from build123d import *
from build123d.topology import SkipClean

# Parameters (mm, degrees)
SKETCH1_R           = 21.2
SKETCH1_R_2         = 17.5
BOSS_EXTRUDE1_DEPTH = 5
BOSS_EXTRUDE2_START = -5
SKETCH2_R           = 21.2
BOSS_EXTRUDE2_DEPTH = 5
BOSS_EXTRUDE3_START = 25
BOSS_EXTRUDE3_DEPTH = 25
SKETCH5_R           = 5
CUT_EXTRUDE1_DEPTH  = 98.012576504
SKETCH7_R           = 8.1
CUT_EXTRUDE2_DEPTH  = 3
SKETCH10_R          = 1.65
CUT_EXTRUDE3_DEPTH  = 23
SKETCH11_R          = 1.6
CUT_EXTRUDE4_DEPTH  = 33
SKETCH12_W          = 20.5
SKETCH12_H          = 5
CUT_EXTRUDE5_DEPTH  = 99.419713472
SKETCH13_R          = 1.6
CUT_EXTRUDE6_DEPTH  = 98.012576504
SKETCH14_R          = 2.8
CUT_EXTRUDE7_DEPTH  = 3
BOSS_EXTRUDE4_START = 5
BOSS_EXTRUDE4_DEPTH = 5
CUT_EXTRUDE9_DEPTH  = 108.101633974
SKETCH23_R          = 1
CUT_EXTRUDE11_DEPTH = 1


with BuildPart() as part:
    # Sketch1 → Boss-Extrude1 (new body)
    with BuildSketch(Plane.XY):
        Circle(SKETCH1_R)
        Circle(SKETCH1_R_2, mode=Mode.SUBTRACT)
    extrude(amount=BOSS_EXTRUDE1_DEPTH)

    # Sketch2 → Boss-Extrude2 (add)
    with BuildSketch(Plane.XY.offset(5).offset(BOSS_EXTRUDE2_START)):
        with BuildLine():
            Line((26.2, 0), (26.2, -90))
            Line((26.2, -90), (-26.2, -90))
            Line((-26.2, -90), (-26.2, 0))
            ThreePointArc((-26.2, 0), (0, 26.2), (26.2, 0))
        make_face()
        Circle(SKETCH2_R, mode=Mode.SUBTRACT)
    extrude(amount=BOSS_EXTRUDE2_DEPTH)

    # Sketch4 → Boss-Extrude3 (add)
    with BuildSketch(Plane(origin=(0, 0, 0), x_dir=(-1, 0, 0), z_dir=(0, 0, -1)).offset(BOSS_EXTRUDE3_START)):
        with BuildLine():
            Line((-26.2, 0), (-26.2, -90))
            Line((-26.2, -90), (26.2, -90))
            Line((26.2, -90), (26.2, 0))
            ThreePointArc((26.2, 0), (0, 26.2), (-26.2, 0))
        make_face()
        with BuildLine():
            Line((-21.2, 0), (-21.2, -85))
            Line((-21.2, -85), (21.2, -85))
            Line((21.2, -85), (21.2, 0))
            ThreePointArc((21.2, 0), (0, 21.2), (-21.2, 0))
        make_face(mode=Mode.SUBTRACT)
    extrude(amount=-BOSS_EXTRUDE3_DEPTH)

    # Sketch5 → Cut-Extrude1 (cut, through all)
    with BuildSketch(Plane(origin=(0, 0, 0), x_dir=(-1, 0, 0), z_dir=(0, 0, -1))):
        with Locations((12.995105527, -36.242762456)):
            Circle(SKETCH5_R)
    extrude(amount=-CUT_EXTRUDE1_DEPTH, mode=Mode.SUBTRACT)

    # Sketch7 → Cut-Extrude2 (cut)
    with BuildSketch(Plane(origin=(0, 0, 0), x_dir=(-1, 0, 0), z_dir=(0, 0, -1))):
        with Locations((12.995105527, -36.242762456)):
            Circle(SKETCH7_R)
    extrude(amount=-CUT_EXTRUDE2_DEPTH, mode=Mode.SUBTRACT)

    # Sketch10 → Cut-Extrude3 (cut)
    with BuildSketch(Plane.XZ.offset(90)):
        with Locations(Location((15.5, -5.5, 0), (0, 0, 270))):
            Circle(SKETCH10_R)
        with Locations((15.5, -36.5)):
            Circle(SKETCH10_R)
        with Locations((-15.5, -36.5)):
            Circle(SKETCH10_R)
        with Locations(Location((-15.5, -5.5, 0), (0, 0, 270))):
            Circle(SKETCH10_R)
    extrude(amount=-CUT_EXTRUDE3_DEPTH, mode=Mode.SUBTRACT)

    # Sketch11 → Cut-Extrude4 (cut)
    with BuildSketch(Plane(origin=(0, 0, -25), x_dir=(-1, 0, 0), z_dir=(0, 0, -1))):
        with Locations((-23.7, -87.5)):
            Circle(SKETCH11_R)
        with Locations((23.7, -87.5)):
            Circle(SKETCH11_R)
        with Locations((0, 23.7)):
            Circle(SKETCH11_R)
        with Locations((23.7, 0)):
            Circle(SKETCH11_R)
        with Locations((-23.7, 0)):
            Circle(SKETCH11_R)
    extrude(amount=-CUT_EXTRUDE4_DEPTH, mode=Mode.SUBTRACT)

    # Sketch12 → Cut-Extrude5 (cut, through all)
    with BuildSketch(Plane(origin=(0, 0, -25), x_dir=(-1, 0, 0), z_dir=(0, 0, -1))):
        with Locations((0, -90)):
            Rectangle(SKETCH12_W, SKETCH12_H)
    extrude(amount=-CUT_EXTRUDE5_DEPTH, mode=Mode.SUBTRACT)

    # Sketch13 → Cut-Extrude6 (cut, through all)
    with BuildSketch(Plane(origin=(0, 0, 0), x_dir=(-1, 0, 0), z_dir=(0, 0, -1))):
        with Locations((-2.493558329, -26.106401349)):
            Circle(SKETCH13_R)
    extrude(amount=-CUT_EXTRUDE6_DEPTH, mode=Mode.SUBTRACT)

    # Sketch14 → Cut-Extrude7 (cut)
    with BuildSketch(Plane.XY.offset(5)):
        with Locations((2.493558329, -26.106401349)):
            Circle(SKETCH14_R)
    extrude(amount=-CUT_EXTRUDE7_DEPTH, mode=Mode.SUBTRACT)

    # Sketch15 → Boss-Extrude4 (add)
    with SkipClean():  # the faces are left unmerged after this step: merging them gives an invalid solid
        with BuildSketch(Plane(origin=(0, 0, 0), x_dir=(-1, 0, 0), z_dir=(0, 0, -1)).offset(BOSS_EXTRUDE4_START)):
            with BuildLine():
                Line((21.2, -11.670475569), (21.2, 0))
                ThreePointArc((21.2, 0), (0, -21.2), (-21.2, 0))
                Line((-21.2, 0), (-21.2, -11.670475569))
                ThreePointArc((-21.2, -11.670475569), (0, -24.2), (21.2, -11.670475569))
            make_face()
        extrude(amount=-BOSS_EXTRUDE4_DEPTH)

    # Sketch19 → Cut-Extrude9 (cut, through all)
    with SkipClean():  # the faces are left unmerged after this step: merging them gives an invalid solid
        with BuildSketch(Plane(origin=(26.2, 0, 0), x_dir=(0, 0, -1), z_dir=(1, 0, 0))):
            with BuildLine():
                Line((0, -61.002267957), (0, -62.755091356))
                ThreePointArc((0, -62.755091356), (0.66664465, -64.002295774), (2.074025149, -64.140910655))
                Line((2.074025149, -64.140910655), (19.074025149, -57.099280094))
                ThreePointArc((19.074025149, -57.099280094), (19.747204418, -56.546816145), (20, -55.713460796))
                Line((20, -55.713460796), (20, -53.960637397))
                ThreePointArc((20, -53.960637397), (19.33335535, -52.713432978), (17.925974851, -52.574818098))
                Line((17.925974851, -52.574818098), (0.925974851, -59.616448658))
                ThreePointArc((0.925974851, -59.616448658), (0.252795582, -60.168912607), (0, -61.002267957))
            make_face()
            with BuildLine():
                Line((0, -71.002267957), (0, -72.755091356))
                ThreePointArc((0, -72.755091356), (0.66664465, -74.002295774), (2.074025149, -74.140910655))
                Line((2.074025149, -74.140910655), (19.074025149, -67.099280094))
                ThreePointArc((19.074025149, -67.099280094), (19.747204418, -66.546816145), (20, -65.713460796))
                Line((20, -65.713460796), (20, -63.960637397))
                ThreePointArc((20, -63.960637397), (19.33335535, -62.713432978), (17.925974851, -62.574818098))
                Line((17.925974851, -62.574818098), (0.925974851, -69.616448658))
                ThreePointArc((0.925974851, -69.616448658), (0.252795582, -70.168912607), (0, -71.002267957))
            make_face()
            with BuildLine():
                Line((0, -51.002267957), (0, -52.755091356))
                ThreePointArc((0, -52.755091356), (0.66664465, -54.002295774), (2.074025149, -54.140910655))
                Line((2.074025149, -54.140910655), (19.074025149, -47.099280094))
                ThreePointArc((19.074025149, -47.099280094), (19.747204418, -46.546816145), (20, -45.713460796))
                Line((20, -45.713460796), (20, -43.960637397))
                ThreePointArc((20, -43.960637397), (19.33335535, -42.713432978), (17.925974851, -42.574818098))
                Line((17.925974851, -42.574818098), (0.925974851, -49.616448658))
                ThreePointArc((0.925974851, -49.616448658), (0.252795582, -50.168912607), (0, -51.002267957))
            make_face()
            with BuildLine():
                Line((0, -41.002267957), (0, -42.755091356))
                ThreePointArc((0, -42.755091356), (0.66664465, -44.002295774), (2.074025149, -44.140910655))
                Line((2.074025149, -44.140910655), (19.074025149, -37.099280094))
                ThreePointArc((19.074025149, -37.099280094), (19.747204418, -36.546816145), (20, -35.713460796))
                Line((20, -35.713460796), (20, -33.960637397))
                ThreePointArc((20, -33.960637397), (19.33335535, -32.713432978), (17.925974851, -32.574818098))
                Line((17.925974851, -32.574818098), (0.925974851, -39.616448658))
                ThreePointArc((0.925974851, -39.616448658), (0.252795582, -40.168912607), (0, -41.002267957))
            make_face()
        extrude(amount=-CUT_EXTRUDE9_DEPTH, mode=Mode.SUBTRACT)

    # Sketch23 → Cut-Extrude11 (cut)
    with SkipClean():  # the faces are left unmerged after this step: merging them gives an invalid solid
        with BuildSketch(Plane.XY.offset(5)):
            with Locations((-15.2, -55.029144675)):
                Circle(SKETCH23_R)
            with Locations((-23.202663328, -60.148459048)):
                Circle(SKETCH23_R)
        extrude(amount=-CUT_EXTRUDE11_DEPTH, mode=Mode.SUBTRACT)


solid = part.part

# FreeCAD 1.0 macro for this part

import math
import FreeCAD as App
import Part
import Sketcher

V = App.Vector
Q = App.Units.Quantity

doc = App.newDocument("Part")
body = doc.addObject("PartDesign::Body", "Body")

sketch1 = body.newObject("Sketcher::SketchObject", "Sketch")
sketch1.AttachmentSupport = (doc.getObject("XY_Plane"), [""])
sketch1.MapMode = "FlatFace"
sketch1.addGeometry([
    Part.Circle(V(0, 0, 0), V(0, 0, 1), 21),
    Part.Circle(V(0, 0, 0), V(0, 0, 1), 18),
], False)
sketch1.addConstraint([
    Sketcher.Constraint("Coincident", 0, 3, -1, 1),
    Sketcher.Constraint("Coincident", 1, 3, -1, 1),
    Sketcher.Constraint("Diameter", 1, Q("35 mm")),
    Sketcher.Constraint("Diameter", 0, Q("42.4 mm")),
])
pad1 = body.newObject("PartDesign::Pad", "Pad")
pad1.Profile = sketch1
pad1.Length = 5

sketch2 = body.newObject("Sketcher::SketchObject", "Sketch001")
sketch2.AttachmentSupport = (doc.getObject("XY_Plane"), [""])
sketch2.MapMode = "FlatFace"
sketch2.addGeometry([
    Part.LineSegment(V(26, -90, 0), V(26, 0, 0)),
    Part.ArcOfCircle(Part.Circle(V(0, 0, 0), V(0, 0, 1), 26), math.radians(0), math.radians(180)),
    Part.LineSegment(V(-26, 0, 0), V(-26, -90, 0)),
    Part.LineSegment(V(-26, -90, 0), V(26, -90, 0)),
    Part.Circle(V(0, 0, 0), V(0, 0, 1), 21),
], False)
sketch2.addConstraint([
    Sketcher.Constraint("Tangent", 0, 2, 1, 1),
    Sketcher.Constraint("Tangent", 1, 2, 2, 1),
    Sketcher.Constraint("Coincident", 2, 2, 3, 1),
    Sketcher.Constraint("Coincident", 3, 2, 0, 1),
    Sketcher.Constraint("Vertical", 0),
    Sketcher.Constraint("Vertical", 2),
    Sketcher.Constraint("Horizontal", 3),
    Sketcher.Constraint("Coincident", 1, 3, -1, 1),
    Sketcher.Constraint("Coincident", 4, 3, -1, 1),
    Sketcher.Constraint("Diameter", 4, Q("42.4 mm")),
    Sketcher.Constraint("Radius", 1, Q("26.2 mm")),
    Sketcher.Constraint("DistanceY", 0, 1, 0, 2, Q("90 mm")),
])
pad2 = body.newObject("PartDesign::Pad", "Pad001")
pad2.Profile = sketch2
pad2.Length = 5

sketch3 = body.newObject("Sketcher::SketchObject", "Sketch002")
sketch3.AttachmentSupport = (doc.getObject("XY_Plane"), [""])
sketch3.MapMode = "FlatFace"
sketch3.AttachmentOffset = App.Placement(V(0, 0, -25), App.Rotation())
sketch3.addGeometry([
    Part.LineSegment(V(26, 0, 0), V(26, -90, 0)),
    Part.LineSegment(V(26, -90, 0), V(-26, -90, 0)),
    Part.LineSegment(V(-26, -90, 0), V(-26, 0, 0)),
    Part.ArcOfCircle(Part.Circle(V(0, 0, 0), V(0, 0, 1), 26), math.radians(0), math.radians(180)),
    Part.LineSegment(V(21, -85, 0), V(21, 0, 0)),
    Part.ArcOfCircle(Part.Circle(V(0, 0, 0), V(0, 0, 1), 21), math.radians(0), math.radians(180)),
    Part.LineSegment(V(-21, 0, 0), V(-21, -85, 0)),
    Part.LineSegment(V(-21, -85, 0), V(21, -85, 0)),
], False)
sketch3.addConstraint([
    Sketcher.Constraint("Coincident", 0, 2, 1, 1),
    Sketcher.Constraint("Coincident", 1, 2, 2, 1),
    Sketcher.Constraint("Tangent", 2, 2, 3, 2),
    Sketcher.Constraint("Tangent", 3, 1, 0, 1),
    Sketcher.Constraint("Tangent", 4, 2, 5, 1),
    Sketcher.Constraint("Tangent", 5, 2, 6, 1),
    Sketcher.Constraint("Coincident", 6, 2, 7, 1),
    Sketcher.Constraint("Coincident", 7, 2, 4, 1),
    Sketcher.Constraint("Vertical", 0),
    Sketcher.Constraint("Horizontal", 1),
    Sketcher.Constraint("Vertical", 2),
    Sketcher.Constraint("Vertical", 4),
    Sketcher.Constraint("Vertical", 6),
    Sketcher.Constraint("Horizontal", 7),
    Sketcher.Constraint("Coincident", 3, 3, -1, 1),
    Sketcher.Constraint("Coincident", 5, 3, -1, 1),
    Sketcher.Constraint("Radius", 3, Q("26.2 mm")),
    Sketcher.Constraint("Radius", 5, Q("21.2 mm")),
    Sketcher.Constraint("DistanceY", 0, 2, 0, 1, Q("90 mm")),
    Sketcher.Constraint("DistanceY", 4, 1, 4, 2, Q("85 mm")),
])
pad3 = body.newObject("PartDesign::Pad", "Pad002")
pad3.Profile = sketch3
pad3.Length = 25

sketch4 = body.newObject("Sketcher::SketchObject", "Sketch003")
sketch4.AttachmentSupport = (doc.getObject("XY_Plane"), [""])
sketch4.MapMode = "FlatFace"
sketch4.addGeometry(Part.Circle(V(-13, -36, 0), V(0, 0, 1), 5), False)
sketch4.addConstraint([
    Sketcher.Constraint("Diameter", 0, Q("10 mm")),
    Sketcher.Constraint("DistanceX", 0, 3, -1, 1, Q("12.995106 mm")),
    Sketcher.Constraint("DistanceY", 0, 3, -1, 1, Q("36.242762 mm")),
])
pocket1 = body.newObject("PartDesign::Pocket", "Pocket")
pocket1.Profile = sketch4
pocket1.Type = "ThroughAll"
pocket1.Reversed = True

sketch5 = body.newObject("Sketcher::SketchObject", "Sketch004")
sketch5.AttachmentSupport = (doc.getObject("XY_Plane"), [""])
sketch5.MapMode = "FlatFace"
sketch5.addGeometry(Part.Circle(V(-13, -36, 0), V(0, 0, 1), 8), False)
sketch5.addConstraint([
    Sketcher.Constraint("Diameter", 0, Q("16.2 mm")),
    Sketcher.Constraint("DistanceX", 0, 3, -1, 1, Q("12.995106 mm")),
    Sketcher.Constraint("DistanceY", 0, 3, -1, 1, Q("36.242762 mm")),
])
pocket2 = body.newObject("PartDesign::Pocket", "Pocket001")
pocket2.Profile = sketch5
pocket2.Length = 3
pocket2.Reversed = True

sketch6 = body.newObject("Sketcher::SketchObject", "Sketch005")
sketch6.AttachmentSupport = (doc.getObject("XZ_Plane"), [""])
sketch6.MapMode = "FlatFace"
sketch6.AttachmentOffset = App.Placement(V(0, 0, 90), App.Rotation())
sketch6.addGeometry([
    Part.Circle(V(15.5, -5.5, 0), V(0, 0, 1), 1.6),
    Part.Circle(V(15.5, -36.5, 0), V(0, 0, 1), 1.6),
    Part.Circle(V(-15.5, -36.5, 0), V(0, 0, 1), 1.6),
    Part.Circle(V(-15.5, -5.5, 0), V(0, 0, 1), 1.6),
], False)
sketch6.addConstraint([
    Sketcher.Constraint("Equal", 0, 1),
    Sketcher.Constraint("Equal", 1, 2),
    Sketcher.Constraint("Equal", 2, 3),
    Sketcher.Constraint("Symmetric", 1, 3, 2, 3, -2),
    Sketcher.Constraint("Symmetric", 0, 3, 3, 3, -2),
    Sketcher.Constraint("Vertical", 0, 3, 1, 3),
    Sketcher.Constraint("Diameter", 0, Q("3.3 mm")),
    Sketcher.Constraint("DistanceY", 1, 3, 0, 3, Q("31 mm")),
    Sketcher.Constraint("DistanceX", 2, 3, 1, 3, Q("31 mm")),
    Sketcher.Constraint("DistanceY", 0, 3, -1, 1, Q("5.5 mm")),
])
pocket3 = body.newObject("PartDesign::Pocket", "Pocket002")
pocket3.Profile = sketch6
pocket3.Length = 23

sketch7 = body.newObject("Sketcher::SketchObject", "Sketch006")
sketch7.AttachmentSupport = (doc.getObject("XY_Plane"), [""])
sketch7.MapMode = "FlatFace"
sketch7.AttachmentOffset = App.Placement(V(0, 0, -25), App.Rotation())
sketch7.addGeometry([
    Part.Circle(V(23.7, -87.5, 0), V(0, 0, 1), 1.6),
    Part.Circle(V(-23.7, -87.5, 0), V(0, 0, 1), 1.6),
    Part.Circle(V(0, 23.7, 0), V(0, 0, 1), 1.6),
    Part.Circle(V(-23.7, 0, 0), V(0, 0, 1), 1.6),
    Part.Circle(V(23.7, 0, 0), V(0, 0, 1), 1.6),
], False)
sketch7.addConstraint([
    Sketcher.Constraint("Equal", 0, 1),
    Sketcher.Constraint("Equal", 1, 2),
    Sketcher.Constraint("Equal", 2, 3),
    Sketcher.Constraint("Equal", 3, 4),
    Sketcher.Constraint("Symmetric", 3, 3, 4, 3, -1, 1),
    Sketcher.Constraint("Symmetric", 0, 3, 1, 3, -2),
    Sketcher.Constraint("PointOnObject", 2, 3, -2),
    Sketcher.Constraint("PointOnObject", 3, 3, -1),
    Sketcher.Constraint("Vertical", 1, 3, 3, 3),
    Sketcher.Constraint("Diameter", 0, Q("3.2 mm")),
    Sketcher.Constraint("DistanceX", -1, 1, 0, 3, Q("23.7 mm")),
    Sketcher.Constraint("DistanceY", 0, 3, -1, 1, Q("87.5 mm")),
    Sketcher.Constraint("DistanceY", -1, 1, 2, 3, Q("23.7 mm")),
])
pocket4 = body.newObject("PartDesign::Pocket", "Pocket003")
pocket4.Profile = sketch7
pocket4.Length = 33
pocket4.Reversed = True

sketch8 = body.newObject("Sketcher::SketchObject", "Sketch007")
sketch8.AttachmentSupport = (doc.getObject("XY_Plane"), [""])
sketch8.MapMode = "FlatFace"
sketch8.AttachmentOffset = App.Placement(V(0, 0, -25), App.Rotation())
sketch8.addGeometry([
    Part.LineSegment(V(10, -88, 0), V(10, -92, 0)),
    Part.LineSegment(V(10, -92, 0), V(-10, -92, 0)),
    Part.LineSegment(V(-10, -92, 0), V(-10, -88, 0)),
    Part.LineSegment(V(-10, -88, 0), V(10, -88, 0)),
], False)
sketch8.addConstraint([
    Sketcher.Constraint("Coincident", 0, 2, 1, 1),
    Sketcher.Constraint("Coincident", 1, 2, 2, 1),
    Sketcher.Constraint("Coincident", 2, 2, 3, 1),
    Sketcher.Constraint("Coincident", 3, 2, 0, 1),
    Sketcher.Constraint("Vertical", 0),
    Sketcher.Constraint("Horizontal", 1),
    Sketcher.Constraint("Vertical", 2),
    Sketcher.Constraint("Horizontal", 3),
    Sketcher.Constraint("DistanceY", 0, 2, 0, 1, Q("5 mm")),
    Sketcher.Constraint("DistanceX", 1, 2, 1, 1, Q("20.5 mm")),
    Sketcher.Constraint("DistanceY", 0, 2, -1, 1, Q("92.5 mm")),
    Sketcher.Constraint("DistanceX", -1, 1, 0, 2, Q("10.25 mm")),
])
pocket5 = body.newObject("PartDesign::Pocket", "Pocket004")
pocket5.Profile = sketch8
pocket5.Type = "ThroughAll"
pocket5.Reversed = True

sketch9 = body.newObject("Sketcher::SketchObject", "Sketch008")
sketch9.AttachmentSupport = (doc.getObject("XY_Plane"), [""])
sketch9.MapMode = "FlatFace"
sketch9.addGeometry(Part.Circle(V(2.5, -26.1, 0), V(0, 0, 1), 1.6), False)
sketch9.addConstraint([
    Sketcher.Constraint("Diameter", 0, Q("3.2 mm")),
    Sketcher.Constraint("DistanceY", 0, 3, -1, 1, Q("26.106401 mm")),
    Sketcher.Constraint("DistanceX", -1, 1, 0, 3, Q("2.493558 mm")),
])
pocket6 = body.newObject("PartDesign::Pocket", "Pocket005")
pocket6.Profile = sketch9
pocket6.Type = "ThroughAll"
pocket6.Reversed = True

sketch10 = body.newObject("Sketcher::SketchObject", "Sketch009")
sketch10.AttachmentSupport = (doc.getObject("XY_Plane"), [""])
sketch10.MapMode = "FlatFace"
sketch10.AttachmentOffset = App.Placement(V(0, 0, 5), App.Rotation())
sketch10.addGeometry(Part.Circle(V(2.5, -26.1, 0), V(0, 0, 1), 2.8), False)
sketch10.addConstraint([
    Sketcher.Constraint("Diameter", 0, Q("5.6 mm")),
    Sketcher.Constraint("DistanceY", 0, 3, -1, 1, Q("26.106401 mm")),
    Sketcher.Constraint("DistanceX", -1, 1, 0, 3, Q("2.493558 mm")),
])
pocket7 = body.newObject("PartDesign::Pocket", "Pocket006")
pocket7.Profile = sketch10
pocket7.Length = 3

sketch11 = body.newObject("Sketcher::SketchObject", "Sketch010")
sketch11.AttachmentSupport = (doc.getObject("XY_Plane"), [""])
sketch11.MapMode = "FlatFace"
sketch11.AttachmentOffset = App.Placement(V(0, 0, -5), App.Rotation())
sketch11.addGeometry([
    Part.LineSegment(V(-21, -12, 0), V(-21, 0, 0)),
    Part.ArcOfCircle(Part.Circle(V(0, 0, 0), V(0, 0, 1), 21), math.radians(180), math.radians(360)),
    Part.LineSegment(V(21, 0, 0), V(21, -12, 0)),
    Part.ArcOfCircle(Part.Circle(V(0, 0, 0), V(0, 0, 1), 24), math.radians(-151), math.radians(-29)),
], False)
sketch11.addConstraint([
    Sketcher.Constraint("Tangent", 0, 2, 1, 1),
    Sketcher.Constraint("Tangent", 1, 2, 2, 1),
    Sketcher.Constraint("Coincident", 2, 2, 3, 2),
    Sketcher.Constraint("Coincident", 3, 1, 0, 1),
    Sketcher.Constraint("Vertical", 0),
    Sketcher.Constraint("Vertical", 2),
    Sketcher.Constraint("Coincident", 1, 3, -1, 1),
    Sketcher.Constraint("Coincident", 3, 3, -1, 1),
    Sketcher.Constraint("Radius", 1, Q("21.2 mm")),
    Sketcher.Constraint("Radius", 3, Q("24.2 mm")),
])
pad4 = body.newObject("PartDesign::Pad", "Pad003")
pad4.Profile = sketch11
pad4.Length = 5

sketch12 = body.newObject("Sketcher::SketchObject", "Sketch011")
sketch12.AttachmentSupport = (doc.getObject("YZ_Plane"), [""])
sketch12.MapMode = "FlatFace"
sketch12.AttachmentOffset = App.Placement(V(0, 0, 26.2), App.Rotation())
sketch12.addGeometry([
    Part.LineSegment(V(-61, 0, 0), V(-62.8, 0, 0)),
    Part.ArcOfCircle(Part.Circle(V(-62.8, -1.5, 0), V(0, 0, 1), 1.5), math.radians(90), math.radians(202)),
    Part.LineSegment(V(-64.1, -2.1, 0), V(-57.1, -19.1, 0)),
    Part.ArcOfCircle(Part.Circle(V(-55.7, -18.5, 0), V(0, 0, 1), 1.5), math.radians(-157), math.radians(-90)),
    Part.LineSegment(V(-55.7, -20, 0), V(-54, -20, 0)),
    Part.ArcOfCircle(Part.Circle(V(-54, -18.5, 0), V(0, 0, 1), 1.5), math.radians(-90), math.radians(23)),
    Part.LineSegment(V(-52.6, -17.9, 0), V(-59.6, -0.9, 0)),
    Part.ArcOfCircle(Part.Circle(V(-61, -1.5, 0), V(0, 0, 1), 1.5), math.radians(23), math.radians(90)),
    Part.LineSegment(V(-71, 0, 0), V(-72.8, 0, 0)),
    Part.ArcOfCircle(Part.Circle(V(-72.8, -1.5, 0), V(0, 0, 1), 1.5), math.radians(90), math.radians(202)),
    Part.LineSegment(V(-74.1, -2.1, 0), V(-67.1, -19.1, 0)),
    Part.ArcOfCircle(Part.Circle(V(-65.7, -18.5, 0), V(0, 0, 1), 1.5), math.radians(-157), math.radians(-90)),
    Part.LineSegment(V(-65.7, -20, 0), V(-64, -20, 0)),
    Part.ArcOfCircle(Part.Circle(V(-64, -18.5, 0), V(0, 0, 1), 1.5), math.radians(-90), math.radians(23)),
    Part.LineSegment(V(-62.6, -17.9, 0), V(-69.6, -0.9, 0)),
    Part.ArcOfCircle(Part.Circle(V(-71, -1.5, 0), V(0, 0, 1), 1.5), math.radians(23), math.radians(90)),
    Part.LineSegment(V(-51, 0, 0), V(-52.8, 0, 0)),
    Part.ArcOfCircle(Part.Circle(V(-52.8, -1.5, 0), V(0, 0, 1), 1.5), math.radians(90), math.radians(202)),
    Part.LineSegment(V(-54.1, -2.1, 0), V(-47.1, -19.1, 0)),
    Part.ArcOfCircle(Part.Circle(V(-45.7, -18.5, 0), V(0, 0, 1), 1.5), math.radians(-157), math.radians(-90)),
    Part.LineSegment(V(-45.7, -20, 0), V(-44, -20, 0)),
    Part.ArcOfCircle(Part.Circle(V(-44, -18.5, 0), V(0, 0, 1), 1.5), math.radians(-90), math.radians(23)),
    Part.LineSegment(V(-42.6, -17.9, 0), V(-49.6, -0.9, 0)),
    Part.ArcOfCircle(Part.Circle(V(-51, -1.5, 0), V(0, 0, 1), 1.5), math.radians(23), math.radians(90)),
    Part.LineSegment(V(-41, 0, 0), V(-42.8, 0, 0)),
    Part.ArcOfCircle(Part.Circle(V(-42.8, -1.5, 0), V(0, 0, 1), 1.5), math.radians(90), math.radians(202)),
    Part.LineSegment(V(-44.1, -2.1, 0), V(-37.1, -19.1, 0)),
    Part.ArcOfCircle(Part.Circle(V(-35.7, -18.5, 0), V(0, 0, 1), 1.5), math.radians(-157), math.radians(-90)),
    Part.LineSegment(V(-35.7, -20, 0), V(-34, -20, 0)),
    Part.ArcOfCircle(Part.Circle(V(-34, -18.5, 0), V(0, 0, 1), 1.5), math.radians(-90), math.radians(23)),
    Part.LineSegment(V(-32.6, -17.9, 0), V(-39.6, -0.9, 0)),
    Part.ArcOfCircle(Part.Circle(V(-41, -1.5, 0), V(0, 0, 1), 1.5), math.radians(23), math.radians(90)),
], False)
sketch12.addConstraint([
    Sketcher.Constraint("Tangent", 0, 2, 1, 1),
    Sketcher.Constraint("Tangent", 1, 2, 2, 1),
    Sketcher.Constraint("Tangent", 2, 2, 3, 1),
    Sketcher.Constraint("Tangent", 3, 2, 4, 1),
    Sketcher.Constraint("Tangent", 4, 2, 5, 1),
    Sketcher.Constraint("Tangent", 5, 2, 6, 1),
    Sketcher.Constraint("Tangent", 6, 2, 7, 1),
    Sketcher.Constraint("Tangent", 7, 2, 0, 1),
    Sketcher.Constraint("Tangent", 8, 2, 9, 1),
    Sketcher.Constraint("Tangent", 9, 2, 10, 1),
    Sketcher.Constraint("Tangent", 10, 2, 11, 1),
    Sketcher.Constraint("Tangent", 11, 2, 12, 1),
    Sketcher.Constraint("Tangent", 12, 2, 13, 1),
    Sketcher.Constraint("Tangent", 13, 2, 14, 1),
    Sketcher.Constraint("Tangent", 14, 2, 15, 1),
    Sketcher.Constraint("Tangent", 15, 2, 8, 1),
    Sketcher.Constraint("Tangent", 16, 2, 17, 1),
    Sketcher.Constraint("Tangent", 17, 2, 18, 1),
    Sketcher.Constraint("Tangent", 18, 2, 19, 1),
    Sketcher.Constraint("Tangent", 19, 2, 20, 1),
    Sketcher.Constraint("Tangent", 20, 2, 21, 1),
    Sketcher.Constraint("Tangent", 21, 2, 22, 1),
    Sketcher.Constraint("Tangent", 22, 2, 23, 1),
    Sketcher.Constraint("Tangent", 23, 2, 16, 1),
    Sketcher.Constraint("Tangent", 24, 2, 25, 1),
    Sketcher.Constraint("Tangent", 25, 2, 26, 1),
    Sketcher.Constraint("Tangent", 26, 2, 27, 1),
    Sketcher.Constraint("Tangent", 27, 2, 28, 1),
    Sketcher.Constraint("Tangent", 28, 2, 29, 1),
    Sketcher.Constraint("Tangent", 29, 2, 30, 1),
    Sketcher.Constraint("Tangent", 30, 2, 31, 1),
    Sketcher.Constraint("Tangent", 31, 2, 24, 1),
    Sketcher.Constraint("Horizontal", 0),
    Sketcher.Constraint("Horizontal", 4),
    Sketcher.Constraint("Horizontal", 8),
    Sketcher.Constraint("Horizontal", 12),
    Sketcher.Constraint("Horizontal", 16),
    Sketcher.Constraint("Horizontal", 20),
    Sketcher.Constraint("Horizontal", 24),
    Sketcher.Constraint("Horizontal", 28),
    Sketcher.Constraint("Equal", 1, 3),
    Sketcher.Constraint("Equal", 3, 5),
    Sketcher.Constraint("Equal", 5, 7),
    Sketcher.Constraint("Equal", 7, 9),
    Sketcher.Constraint("Equal", 9, 11),
    Sketcher.Constraint("Equal", 11, 13),
    Sketcher.Constraint("Equal", 13, 15),
    Sketcher.Constraint("Equal", 15, 17),
    Sketcher.Constraint("Equal", 17, 19),
    Sketcher.Constraint("Equal", 19, 21),
    Sketcher.Constraint("Equal", 21, 23),
    Sketcher.Constraint("Equal", 23, 25),
    Sketcher.Constraint("Equal", 25, 27),
    Sketcher.Constraint("Equal", 27, 29),
    Sketcher.Constraint("Equal", 29, 31),
    Sketcher.Constraint("PointOnObject", 0, 2, -1),
    Sketcher.Constraint("PointOnObject", 8, 2, -1),
    Sketcher.Constraint("PointOnObject", 16, 2, -1),
    Sketcher.Constraint("PointOnObject", 24, 2, -1),
    Sketcher.Constraint("Parallel", 2, 6),
    Sketcher.Constraint("Parallel", 6, 10),
    Sketcher.Constraint("Parallel", 10, 14),
    Sketcher.Constraint("Parallel", 14, 18),
    Sketcher.Constraint("Parallel", 18, 22),
    Sketcher.Constraint("Parallel", 22, 26),
    Sketcher.Constraint("Parallel", 26, 30),
    Sketcher.Constraint("Horizontal", 5, 3, 11, 3),
    Sketcher.Constraint("Horizontal", 13, 3, 19, 3),
    Sketcher.Constraint("Horizontal", 21, 3, 27, 3),
    Sketcher.Constraint("Equal", 4, 8),
    Sketcher.Constraint("Equal", 12, 16),
    Sketcher.Constraint("Equal", 20, 24),
    Sketcher.Constraint("Radius", 1, Q("1.5 mm")),
    Sketcher.Constraint("DistanceY", 3, 2, -1, 1, Q("20 mm")),
    Sketcher.Constraint("Angle", 2, Q("-67.5 deg")),
    Sketcher.Constraint("DistanceX", 9, 3, 1, 3, Q("10 mm")),
    Sketcher.Constraint("DistanceX", 1, 3, 17, 3, Q("10 mm")),
    Sketcher.Constraint("DistanceX", 17, 3, 25, 3, Q("10 mm")),
    Sketcher.Constraint("DistanceX", 0, 2, 0, 1, Q("1.752823 mm")),
    Sketcher.Constraint("DistanceX", 1, 3, -1, 1, Q("62.755091 mm")),
])
pocket8 = body.newObject("PartDesign::Pocket", "Pocket007")
pocket8.Profile = sketch12
pocket8.Type = "ThroughAll"

sketch13 = body.newObject("Sketcher::SketchObject", "Sketch012")
sketch13.AttachmentSupport = (doc.getObject("XY_Plane"), [""])
sketch13.MapMode = "FlatFace"
sketch13.AttachmentOffset = App.Placement(V(0, 0, 5), App.Rotation())
sketch13.addGeometry([
    Part.Circle(V(-15.2, -55, 0), V(0, 0, 1), 1),
    Part.Circle(V(-23.2, -60.1, 0), V(0, 0, 1), 1),
], False)
sketch13.addConstraint([
    Sketcher.Constraint("Equal", 0, 1),
    Sketcher.Constraint("Diameter", 0, Q("2 mm")),
    Sketcher.Constraint("DistanceX", 0, 3, -1, 1, Q("15.2 mm")),
    Sketcher.Constraint("DistanceY", 1, 3, -1, 1, Q("60.148459 mm")),
    Sketcher.Constraint("DistanceY", 0, 3, -1, 1, Q("55.029145 mm")),
    Sketcher.Constraint("DistanceX", 1, 3, -1, 1, Q("23.202663 mm")),
])
pocket9 = body.newObject("PartDesign::Pocket", "Pocket008")
pocket9.Profile = sketch13
pocket9.Length = 1

doc.recompute()
